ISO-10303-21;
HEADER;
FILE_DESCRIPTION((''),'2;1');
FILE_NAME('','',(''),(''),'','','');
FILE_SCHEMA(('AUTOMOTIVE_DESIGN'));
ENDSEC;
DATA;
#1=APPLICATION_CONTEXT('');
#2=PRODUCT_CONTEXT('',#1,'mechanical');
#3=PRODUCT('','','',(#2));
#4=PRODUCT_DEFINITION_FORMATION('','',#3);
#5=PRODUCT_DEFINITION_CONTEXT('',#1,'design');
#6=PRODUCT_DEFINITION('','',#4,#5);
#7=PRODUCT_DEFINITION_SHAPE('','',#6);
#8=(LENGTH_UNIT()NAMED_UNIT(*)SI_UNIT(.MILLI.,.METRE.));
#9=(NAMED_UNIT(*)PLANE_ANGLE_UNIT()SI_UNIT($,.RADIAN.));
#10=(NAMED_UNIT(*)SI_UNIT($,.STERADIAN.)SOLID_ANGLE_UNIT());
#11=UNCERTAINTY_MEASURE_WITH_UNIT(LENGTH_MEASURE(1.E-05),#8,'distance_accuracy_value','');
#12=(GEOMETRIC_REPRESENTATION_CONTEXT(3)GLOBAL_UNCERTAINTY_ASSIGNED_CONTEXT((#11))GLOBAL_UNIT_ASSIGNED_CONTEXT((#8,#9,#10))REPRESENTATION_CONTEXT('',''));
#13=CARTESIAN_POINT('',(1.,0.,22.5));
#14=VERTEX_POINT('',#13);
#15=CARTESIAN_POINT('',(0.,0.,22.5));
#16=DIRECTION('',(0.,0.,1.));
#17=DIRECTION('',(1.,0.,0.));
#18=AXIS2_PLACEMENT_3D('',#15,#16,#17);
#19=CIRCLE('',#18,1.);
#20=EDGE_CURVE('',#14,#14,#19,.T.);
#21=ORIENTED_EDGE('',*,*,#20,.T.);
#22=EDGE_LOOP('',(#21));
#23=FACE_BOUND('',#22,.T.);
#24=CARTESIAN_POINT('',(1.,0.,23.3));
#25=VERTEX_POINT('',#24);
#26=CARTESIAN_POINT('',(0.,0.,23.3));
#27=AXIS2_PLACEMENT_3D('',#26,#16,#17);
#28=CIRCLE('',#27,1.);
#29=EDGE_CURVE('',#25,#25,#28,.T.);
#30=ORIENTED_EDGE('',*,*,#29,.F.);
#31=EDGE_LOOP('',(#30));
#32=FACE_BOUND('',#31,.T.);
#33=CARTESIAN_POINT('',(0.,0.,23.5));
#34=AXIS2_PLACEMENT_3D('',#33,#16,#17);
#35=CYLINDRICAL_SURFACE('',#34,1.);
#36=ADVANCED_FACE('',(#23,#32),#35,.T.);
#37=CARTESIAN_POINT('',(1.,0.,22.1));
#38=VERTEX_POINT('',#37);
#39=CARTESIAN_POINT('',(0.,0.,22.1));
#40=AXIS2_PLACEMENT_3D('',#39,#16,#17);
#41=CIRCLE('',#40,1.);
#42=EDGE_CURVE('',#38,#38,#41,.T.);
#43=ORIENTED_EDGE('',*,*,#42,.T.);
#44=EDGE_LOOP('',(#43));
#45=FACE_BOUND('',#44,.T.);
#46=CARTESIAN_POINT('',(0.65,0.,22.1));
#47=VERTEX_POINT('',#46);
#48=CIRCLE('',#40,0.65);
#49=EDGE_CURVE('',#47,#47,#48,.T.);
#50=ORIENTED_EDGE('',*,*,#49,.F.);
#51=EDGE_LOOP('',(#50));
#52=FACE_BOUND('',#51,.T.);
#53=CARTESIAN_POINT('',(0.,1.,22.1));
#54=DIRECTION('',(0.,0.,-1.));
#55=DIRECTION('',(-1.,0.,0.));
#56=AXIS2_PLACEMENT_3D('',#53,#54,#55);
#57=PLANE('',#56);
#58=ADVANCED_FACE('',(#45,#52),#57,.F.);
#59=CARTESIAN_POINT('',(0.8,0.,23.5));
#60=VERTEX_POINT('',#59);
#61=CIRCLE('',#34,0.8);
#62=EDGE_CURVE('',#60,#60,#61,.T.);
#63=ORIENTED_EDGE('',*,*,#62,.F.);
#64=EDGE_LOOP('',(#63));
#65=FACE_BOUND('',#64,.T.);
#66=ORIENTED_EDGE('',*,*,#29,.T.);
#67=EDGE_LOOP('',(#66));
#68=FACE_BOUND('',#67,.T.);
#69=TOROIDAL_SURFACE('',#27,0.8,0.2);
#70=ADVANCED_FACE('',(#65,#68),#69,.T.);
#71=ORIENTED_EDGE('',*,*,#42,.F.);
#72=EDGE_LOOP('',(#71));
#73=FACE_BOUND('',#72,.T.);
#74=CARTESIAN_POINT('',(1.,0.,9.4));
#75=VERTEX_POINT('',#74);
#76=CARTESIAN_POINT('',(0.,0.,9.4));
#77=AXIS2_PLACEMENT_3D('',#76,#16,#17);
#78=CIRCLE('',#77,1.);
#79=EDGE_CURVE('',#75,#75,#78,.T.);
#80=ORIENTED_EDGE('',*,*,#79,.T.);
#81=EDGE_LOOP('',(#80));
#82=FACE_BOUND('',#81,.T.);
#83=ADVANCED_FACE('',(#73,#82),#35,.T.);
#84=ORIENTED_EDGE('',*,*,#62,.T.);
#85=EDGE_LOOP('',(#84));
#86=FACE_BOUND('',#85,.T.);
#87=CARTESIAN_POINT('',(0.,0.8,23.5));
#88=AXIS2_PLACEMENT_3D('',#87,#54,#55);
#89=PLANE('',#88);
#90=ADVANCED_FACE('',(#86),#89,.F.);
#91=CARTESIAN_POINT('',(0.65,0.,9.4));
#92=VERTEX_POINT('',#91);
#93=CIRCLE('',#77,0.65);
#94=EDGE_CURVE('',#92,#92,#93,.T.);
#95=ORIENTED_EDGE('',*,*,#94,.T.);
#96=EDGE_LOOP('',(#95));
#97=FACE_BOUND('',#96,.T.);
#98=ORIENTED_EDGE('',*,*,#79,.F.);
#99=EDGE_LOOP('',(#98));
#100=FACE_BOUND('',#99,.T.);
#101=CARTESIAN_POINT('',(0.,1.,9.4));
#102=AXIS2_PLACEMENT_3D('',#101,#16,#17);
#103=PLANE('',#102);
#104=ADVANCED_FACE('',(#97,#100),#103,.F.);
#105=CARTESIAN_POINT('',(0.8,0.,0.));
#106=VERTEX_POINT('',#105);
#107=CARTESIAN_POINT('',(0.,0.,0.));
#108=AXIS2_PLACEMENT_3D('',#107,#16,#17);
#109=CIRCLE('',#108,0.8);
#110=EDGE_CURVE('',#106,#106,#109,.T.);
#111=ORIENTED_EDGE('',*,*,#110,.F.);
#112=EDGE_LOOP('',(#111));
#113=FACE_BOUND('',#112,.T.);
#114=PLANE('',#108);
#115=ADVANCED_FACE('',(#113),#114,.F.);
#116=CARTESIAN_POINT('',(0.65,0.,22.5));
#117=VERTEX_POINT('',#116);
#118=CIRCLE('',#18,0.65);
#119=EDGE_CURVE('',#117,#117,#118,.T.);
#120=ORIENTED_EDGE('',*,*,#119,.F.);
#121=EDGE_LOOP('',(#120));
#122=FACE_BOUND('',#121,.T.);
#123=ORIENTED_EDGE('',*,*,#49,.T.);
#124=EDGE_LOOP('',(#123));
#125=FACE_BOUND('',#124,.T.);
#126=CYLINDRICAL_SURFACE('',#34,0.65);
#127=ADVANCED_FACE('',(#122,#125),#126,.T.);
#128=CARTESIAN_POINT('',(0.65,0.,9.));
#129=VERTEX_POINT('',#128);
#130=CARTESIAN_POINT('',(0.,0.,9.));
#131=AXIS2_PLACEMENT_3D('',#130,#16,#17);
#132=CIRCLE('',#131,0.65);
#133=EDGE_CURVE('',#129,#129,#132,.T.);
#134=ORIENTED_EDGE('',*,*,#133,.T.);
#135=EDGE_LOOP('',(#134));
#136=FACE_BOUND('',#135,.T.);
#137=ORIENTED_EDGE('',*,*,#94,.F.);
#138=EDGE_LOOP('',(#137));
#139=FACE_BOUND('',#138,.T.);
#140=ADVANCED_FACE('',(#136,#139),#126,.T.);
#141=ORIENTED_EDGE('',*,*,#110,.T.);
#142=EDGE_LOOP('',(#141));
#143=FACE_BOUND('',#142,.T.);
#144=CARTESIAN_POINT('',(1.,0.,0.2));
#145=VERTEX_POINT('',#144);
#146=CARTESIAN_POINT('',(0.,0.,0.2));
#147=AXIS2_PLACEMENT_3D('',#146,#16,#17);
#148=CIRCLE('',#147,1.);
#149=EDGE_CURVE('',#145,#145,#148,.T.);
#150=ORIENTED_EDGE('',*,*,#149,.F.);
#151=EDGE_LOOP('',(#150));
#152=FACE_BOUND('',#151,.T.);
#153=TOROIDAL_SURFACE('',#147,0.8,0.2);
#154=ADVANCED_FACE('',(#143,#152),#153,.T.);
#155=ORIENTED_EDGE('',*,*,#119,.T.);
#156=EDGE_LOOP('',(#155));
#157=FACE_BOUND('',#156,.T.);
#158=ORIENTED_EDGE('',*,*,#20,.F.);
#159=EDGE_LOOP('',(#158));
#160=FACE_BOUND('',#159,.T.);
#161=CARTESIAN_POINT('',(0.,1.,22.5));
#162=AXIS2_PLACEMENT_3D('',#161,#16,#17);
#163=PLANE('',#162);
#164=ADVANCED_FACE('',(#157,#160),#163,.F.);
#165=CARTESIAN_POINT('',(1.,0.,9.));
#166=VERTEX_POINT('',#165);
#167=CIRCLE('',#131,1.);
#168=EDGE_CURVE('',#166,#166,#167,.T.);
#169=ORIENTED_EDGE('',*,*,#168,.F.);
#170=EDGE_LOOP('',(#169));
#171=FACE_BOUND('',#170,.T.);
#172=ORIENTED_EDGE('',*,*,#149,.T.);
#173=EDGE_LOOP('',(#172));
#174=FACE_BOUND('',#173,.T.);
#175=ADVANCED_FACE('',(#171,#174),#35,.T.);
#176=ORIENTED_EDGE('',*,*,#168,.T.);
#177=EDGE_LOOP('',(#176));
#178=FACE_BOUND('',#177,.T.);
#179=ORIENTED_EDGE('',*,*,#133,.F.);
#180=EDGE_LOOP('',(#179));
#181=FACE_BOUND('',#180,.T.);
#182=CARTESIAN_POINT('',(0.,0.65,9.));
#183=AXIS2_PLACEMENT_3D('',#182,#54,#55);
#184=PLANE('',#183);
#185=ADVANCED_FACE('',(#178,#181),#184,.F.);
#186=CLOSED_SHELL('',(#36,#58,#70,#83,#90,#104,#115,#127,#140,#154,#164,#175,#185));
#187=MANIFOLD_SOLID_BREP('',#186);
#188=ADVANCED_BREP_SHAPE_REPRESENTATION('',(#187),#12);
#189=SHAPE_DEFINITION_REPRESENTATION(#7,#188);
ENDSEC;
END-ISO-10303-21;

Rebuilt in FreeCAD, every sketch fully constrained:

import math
import FreeCAD as App
import Part
import Sketcher

V = App.Vector
Q = App.Units.Quantity

doc = App.newDocument("Part")
body = doc.addObject("PartDesign::Body", "Body")

# Sketch on YZ plane
sketch1 = body.newObject("Sketcher::SketchObject", "Sketch")
sketch1.AttachmentSupport = (doc.getObject("YZ_Plane"), [""])
sketch1.MapMode = "FlatFace"
sketch1.addGeometry([
    Part.LineSegment(V(0, 0, 0), V(0.8, 0, 0)),  # 0
    Part.ArcOfCircle(Part.Circle(V(0.8, 0.2, 0), V(0, 0, 1), 0.2), math.radians(-90), math.radians(0)),  # 1
    Part.LineSegment(V(1, 0.2, 0), V(1, 9, 0)),  # 2
    Part.LineSegment(V(1, 9, 0), V(0.65, 9, 0)),  # 3
    Part.LineSegment(V(0.65, 9, 0), V(0.65, 9.4, 0)),  # 4
    Part.LineSegment(V(0.65, 9.4, 0), V(1, 9.4, 0)),  # 5
    Part.LineSegment(V(1, 9.4, 0), V(1, 22.1, 0)),  # 6
    Part.LineSegment(V(1, 22.1, 0), V(0.65, 22.1, 0)),  # 7
    Part.LineSegment(V(0.65, 22.1, 0), V(0.65, 22.5, 0)),  # 8
    Part.LineSegment(V(0.65, 22.5, 0), V(1, 22.5, 0)),  # 9
    Part.LineSegment(V(1, 22.5, 0), V(1, 23.3, 0)),  # 10
    Part.ArcOfCircle(Part.Circle(V(0.8, 23.3, 0), V(0, 0, 1), 0.2), math.radians(0), math.radians(90)),  # 11
    Part.LineSegment(V(0.8, 23.5, 0), V(0, 23.5, 0)),  # 12
    Part.LineSegment(V(0, 23.5, 0), V(0, 0, 0)),  # 13
], False)
sketch1.addConstraint([
    Sketcher.Constraint("Tangent", 0, 2, 1, 1),
    Sketcher.Constraint("Tangent", 1, 2, 2, 1),
    Sketcher.Constraint("Coincident", 2, 2, 3, 1),
    Sketcher.Constraint("Coincident", 3, 2, 4, 1),
    Sketcher.Constraint("Coincident", 4, 2, 5, 1),
    Sketcher.Constraint("Coincident", 5, 2, 6, 1),
    Sketcher.Constraint("Coincident", 6, 2, 7, 1),
    Sketcher.Constraint("Coincident", 7, 2, 8, 1),
    Sketcher.Constraint("Coincident", 8, 2, 9, 1),
    Sketcher.Constraint("Coincident", 9, 2, 10, 1),
    Sketcher.Constraint("Tangent", 10, 2, 11, 1),
    Sketcher.Constraint("Tangent", 11, 2, 12, 1),
    Sketcher.Constraint("Coincident", 12, 2, 13, 1),
    Sketcher.Constraint("Coincident", 13, 2, 0, 1),
    Sketcher.Constraint("Horizontal", 0),
    Sketcher.Constraint("Vertical", 2),
    Sketcher.Constraint("Horizontal", 3),
    Sketcher.Constraint("Vertical", 4),
    Sketcher.Constraint("Horizontal", 5),
    Sketcher.Constraint("Vertical", 6),
    Sketcher.Constraint("Horizontal", 7),
    Sketcher.Constraint("Vertical", 8),
    Sketcher.Constraint("Horizontal", 9),
    Sketcher.Constraint("Vertical", 10),
    Sketcher.Constraint("Horizontal", 12),
    Sketcher.Constraint("Vertical", 13),
    Sketcher.Constraint("Coincident", 13, 2, -1, 1),
    Sketcher.Constraint("Equal", 1, 11),
    Sketcher.Constraint("Vertical", 1, 3, 11, 3),
    Sketcher.Constraint("Vertical", 2, 2, 5, 2),
    Sketcher.Constraint("Vertical", 4, 2, 7, 2),
    Sketcher.Constraint("Equal", 4, 8),
    Sketcher.Constraint("Equal", 12, 10),
    Sketcher.Constraint("Radius", 1, Q("0.2 mm")),
    Sketcher.Constraint("DistanceX", 0, 1, 0, 2, Q("0.8 mm")),
    Sketcher.Constraint("DistanceY", 2, 1, 2, 2, Q("8.8 mm")),
    Sketcher.Constraint("DistanceY", 4, 1, 4, 2, Q("0.4 mm")),
    Sketcher.Constraint("DistanceY", 6, 1, 6, 2, Q("12.7 mm")),
    Sketcher.Constraint("DistanceX", 3, 2, 3, 1, Q("0.35 mm")),
])
revolution = body.newObject("PartDesign::Revolution", "Revolution")
revolution.Profile = sketch1
revolution.ReferenceAxis = (sketch1, ["V_Axis"])
revolution.Angle = 360

doc.recompute()
